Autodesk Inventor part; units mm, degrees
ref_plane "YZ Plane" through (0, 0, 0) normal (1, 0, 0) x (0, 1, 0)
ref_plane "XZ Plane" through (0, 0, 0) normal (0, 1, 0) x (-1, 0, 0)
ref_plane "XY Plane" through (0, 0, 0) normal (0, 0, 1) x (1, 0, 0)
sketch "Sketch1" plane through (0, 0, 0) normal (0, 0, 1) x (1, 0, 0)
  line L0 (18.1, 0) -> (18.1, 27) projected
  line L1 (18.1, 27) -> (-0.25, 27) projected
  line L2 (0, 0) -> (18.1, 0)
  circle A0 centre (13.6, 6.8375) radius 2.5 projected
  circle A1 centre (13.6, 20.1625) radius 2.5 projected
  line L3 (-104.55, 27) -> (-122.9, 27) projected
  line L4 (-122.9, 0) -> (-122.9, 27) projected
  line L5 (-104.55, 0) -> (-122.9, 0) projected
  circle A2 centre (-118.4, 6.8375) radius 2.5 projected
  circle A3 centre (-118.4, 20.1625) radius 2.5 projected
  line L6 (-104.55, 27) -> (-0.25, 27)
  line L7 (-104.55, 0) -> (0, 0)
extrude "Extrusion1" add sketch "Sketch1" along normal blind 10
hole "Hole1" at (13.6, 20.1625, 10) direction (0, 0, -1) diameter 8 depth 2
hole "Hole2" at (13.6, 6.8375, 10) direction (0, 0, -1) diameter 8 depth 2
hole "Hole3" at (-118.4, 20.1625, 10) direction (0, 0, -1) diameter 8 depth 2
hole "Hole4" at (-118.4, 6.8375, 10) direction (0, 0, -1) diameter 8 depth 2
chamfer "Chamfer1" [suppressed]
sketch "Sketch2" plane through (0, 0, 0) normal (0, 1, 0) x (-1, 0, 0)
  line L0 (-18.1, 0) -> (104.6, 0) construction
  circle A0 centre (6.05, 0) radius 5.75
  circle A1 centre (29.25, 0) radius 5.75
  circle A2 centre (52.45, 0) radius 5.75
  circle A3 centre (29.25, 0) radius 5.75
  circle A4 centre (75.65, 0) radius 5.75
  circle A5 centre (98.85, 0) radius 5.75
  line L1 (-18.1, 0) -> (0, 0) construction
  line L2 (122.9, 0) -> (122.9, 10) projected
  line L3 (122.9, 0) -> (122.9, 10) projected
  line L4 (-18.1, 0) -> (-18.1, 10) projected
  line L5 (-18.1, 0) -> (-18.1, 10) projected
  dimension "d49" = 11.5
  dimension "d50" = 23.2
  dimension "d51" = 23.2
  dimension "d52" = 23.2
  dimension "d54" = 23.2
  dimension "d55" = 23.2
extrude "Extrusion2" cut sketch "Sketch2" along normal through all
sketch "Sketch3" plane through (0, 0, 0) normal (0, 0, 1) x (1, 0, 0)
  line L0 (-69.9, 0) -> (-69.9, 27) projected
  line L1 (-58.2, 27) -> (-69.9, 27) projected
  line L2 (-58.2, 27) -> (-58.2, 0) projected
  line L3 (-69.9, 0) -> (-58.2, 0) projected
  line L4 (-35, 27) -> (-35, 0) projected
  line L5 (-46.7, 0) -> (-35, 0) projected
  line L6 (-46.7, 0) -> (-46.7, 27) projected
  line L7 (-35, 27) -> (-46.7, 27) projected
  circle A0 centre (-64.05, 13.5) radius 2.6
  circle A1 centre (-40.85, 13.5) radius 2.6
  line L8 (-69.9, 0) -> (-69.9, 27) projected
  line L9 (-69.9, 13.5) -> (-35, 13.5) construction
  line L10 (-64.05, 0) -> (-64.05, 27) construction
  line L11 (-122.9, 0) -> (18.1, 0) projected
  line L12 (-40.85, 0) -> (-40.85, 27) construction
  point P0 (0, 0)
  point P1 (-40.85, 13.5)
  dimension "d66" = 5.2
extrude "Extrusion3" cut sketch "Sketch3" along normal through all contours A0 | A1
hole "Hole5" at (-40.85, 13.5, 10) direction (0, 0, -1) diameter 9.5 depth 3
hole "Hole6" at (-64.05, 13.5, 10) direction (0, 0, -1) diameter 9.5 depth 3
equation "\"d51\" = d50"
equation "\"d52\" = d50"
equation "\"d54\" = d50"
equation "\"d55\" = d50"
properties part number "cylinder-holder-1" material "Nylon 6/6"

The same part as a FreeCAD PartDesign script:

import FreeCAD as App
import Part
import Sketcher

doc = App.newDocument("Part")
params = doc.addObject("Spreadsheet::Sheet", "Params")
for row, (alias, value) in enumerate([
    ("sketch1_diameter", "5 mm"),
    ("sketch1_width", "141 mm"),
    ("sketch1_height", "27 mm"),
    ("pad1_length", "10 mm"),
    ("sketch2_diameter", "8 mm"),
    ("hole_diameter", "8 mm"),
    ("hole_depth", "2 mm"),
    ("sketch3_diameter", "8 mm"),
    ("hole2_diameter", "8 mm"),
    ("hole2_depth", "2 mm"),
    ("sketch4_diameter", "8 mm"),
    ("hole3_diameter", "8 mm"),
    ("hole3_depth", "2 mm"),
    ("sketch5_diameter", "8 mm"),
    ("hole4_diameter", "8 mm"),
    ("hole4_depth", "2 mm"),
    ("sketch6_diameter", "11.5 mm"),
    ("sketch7_diameter", "5.2 mm"),
    ("sketch8_diameter", "9.5 mm"),
    ("hole5_diameter", "9.5 mm"),
    ("hole5_depth", "3 mm"),
    ("sketch9_diameter", "9.5 mm"),
    ("hole6_diameter", "9.5 mm"),
    ("hole6_depth", "3 mm"),
], start=1):
    params.set(f"A{row}", alias)
    params.set(f"B{row}", "=" + value)
    params.setAlias(f"B{row}", alias)

body = doc.addObject("PartDesign::Body", "Body")

# Sketch on XY plane
sketch1 = doc.addObject("Sketcher::SketchObject", "Sketch")
body.addObject(sketch1)
sketch1.AttachmentSupport = (doc.XY_Plane, [""])
sketch1.MapMode = "FlatFace"
sketch1.addGeometry([
    Part.LineSegment(App.Vector(-122.9, 0, 0), App.Vector(18.1, 0, 0)),  # 0
    Part.LineSegment(App.Vector(18.1, 0, 0), App.Vector(18.1, 27, 0)),  # 1
    Part.LineSegment(App.Vector(18.1, 27, 0), App.Vector(-122.9, 27, 0)),  # 2
    Part.LineSegment(App.Vector(-122.9, 27, 0), App.Vector(-122.9, 0, 0)),  # 3
    Part.Circle(App.Vector(-118.4, 6.8, 0), App.Vector(0, 0, 1), 2.5),  # 4
    Part.Circle(App.Vector(13.6, 6.8, 0), App.Vector(0, 0, 1), 2.5),  # 5
    Part.Circle(App.Vector(-118.4, 20.2, 0), App.Vector(0, 0, 1), 2.5),  # 6
    Part.Circle(App.Vector(13.6, 20.2, 0), App.Vector(0, 0, 1), 2.5),  # 7
], False)
sketch1.addConstraint([
    Sketcher.Constraint("Coincident", 0, 2, 1, 1),
    Sketcher.Constraint("Coincident", 1, 2, 2, 1),
    Sketcher.Constraint("Coincident", 2, 2, 3, 1),
    Sketcher.Constraint("Coincident", 3, 2, 0, 1),
    Sketcher.Constraint("Horizontal", 0),
    Sketcher.Constraint("Vertical", 1),
    Sketcher.Constraint("Horizontal", 2),
    Sketcher.Constraint("Vertical", 3),
    Sketcher.Constraint("Equal", 4, 5),
    Sketcher.Constraint("Equal", 5, 6),
    Sketcher.Constraint("Equal", 6, 7),
    Sketcher.Constraint("PointOnObject", 0, 2, -1),
    Sketcher.Constraint("Horizontal", 4, 3, 5, 3),
    Sketcher.Constraint("Horizontal", 6, 3, 7, 3),
    Sketcher.Constraint("Vertical", 4, 3, 6, 3),
    Sketcher.Constraint("Vertical", 5, 3, 7, 3),
    Sketcher.Constraint("Diameter", 4, 5.0),
    Sketcher.Constraint("DistanceX", 0, 1, 0, 2, 141.0),
    Sketcher.Constraint("DistanceY", 1, 1, 1, 2, 27.0),
    Sketcher.Constraint("DistanceX", 4, 3, 5, 3, 132.0),
    Sketcher.Constraint("DistanceX", 4, 3, -1, 1, 118.4),
    Sketcher.Constraint("DistanceX", -1, 1, 0, 2, 18.1),
    Sketcher.Constraint("DistanceY", 4, 3, 6, 3, 13.325),
    Sketcher.Constraint("DistanceY", -1, 1, 4, 3, 6.8375),
])
sketch1.setExpression("Constraints[16]", "Params.sketch1_diameter")
sketch1.setExpression("Constraints[17]", "Params.sketch1_width")
sketch1.setExpression("Constraints[18]", "Params.sketch1_height")
pad1 = doc.addObject("PartDesign::Pad", "Pad")
body.addObject(pad1)
pad1.Profile = sketch1
pad1.setExpression("Length", "Params.pad1_length")

# Sketch on XY plane
sketch2 = doc.addObject("Sketcher::SketchObject", "Sketch001")
body.addObject(sketch2)
sketch2.AttachmentSupport = (doc.XY_Plane, [""])
sketch2.MapMode = "FlatFace"
sketch2.AttachmentOffset = App.Placement(App.Vector(0, 0, 10), App.Rotation())
sketch2.addGeometry(Part.Circle(App.Vector(13.6, 20.2, 0), App.Vector(0, 0, 1), 4), False)
sketch2.addConstraint([
    Sketcher.Constraint("Diameter", 0, 8.0),
    Sketcher.Constraint("DistanceX", -1, 1, 0, 3, 13.6),
    Sketcher.Constraint("DistanceY", -1, 1, 0, 3, 20.1625),
])
sketch2.setExpression("Constraints[0]", "Params.sketch2_diameter")
doc.recompute()
hole = doc.addObject("PartDesign::Hole", "Hole")
body.addObject(hole)
hole.Profile = sketch2
hole.ThreadType = "None"
hole.setExpression("Diameter", "Params.hole_diameter")
hole.DepthType = "Dimension"
hole.setExpression("Depth", "Params.hole_depth")
hole.DrillPoint = "Flat"

# Sketch on XY plane
sketch3 = doc.addObject("Sketcher::SketchObject", "Sketch002")
body.addObject(sketch3)
sketch3.AttachmentSupport = (doc.XY_Plane, [""])
sketch3.MapMode = "FlatFace"
sketch3.AttachmentOffset = App.Placement(App.Vector(0, 0, 10), App.Rotation())
sketch3.addGeometry(Part.Circle(App.Vector(13.6, 6.8, 0), App.Vector(0, 0, 1), 4), False)
sketch3.addConstraint([
    Sketcher.Constraint("Diameter", 0, 8.0),
    Sketcher.Constraint("DistanceX", -1, 1, 0, 3, 13.6),
    Sketcher.Constraint("DistanceY", -1, 1, 0, 3, 6.8375),
])
sketch3.setExpression("Constraints[0]", "Params.sketch3_diameter")
doc.recompute()
hole2 = doc.addObject("PartDesign::Hole", "Hole001")
body.addObject(hole2)
hole2.Profile = sketch3
hole2.ThreadType = "None"
hole2.setExpression("Diameter", "Params.hole2_diameter")
hole2.DepthType = "Dimension"
hole2.setExpression("Depth", "Params.hole2_depth")
hole2.DrillPoint = "Flat"

# Sketch on XY plane
sketch4 = doc.addObject("Sketcher::SketchObject", "Sketch003")
body.addObject(sketch4)
sketch4.AttachmentSupport = (doc.XY_Plane, [""])
sketch4.MapMode = "FlatFace"
sketch4.AttachmentOffset = App.Placement(App.Vector(0, 0, 10), App.Rotation())
sketch4.addGeometry(Part.Circle(App.Vector(-118.4, 20.2, 0), App.Vector(0, 0, 1), 4), False)
sketch4.addConstraint([
    Sketcher.Constraint("Diameter", 0, 8.0),
    Sketcher.Constraint("DistanceX", 0, 3, -1, 1, 118.4),
    Sketcher.Constraint("DistanceY", -1, 1, 0, 3, 20.1625),
])
sketch4.setExpression("Constraints[0]", "Params.sketch4_diameter")
doc.recompute()
hole3 = doc.addObject("PartDesign::Hole", "Hole002")
body.addObject(hole3)
hole3.Profile = sketch4
hole3.ThreadType = "None"
hole3.setExpression("Diameter", "Params.hole3_diameter")
hole3.DepthType = "Dimension"
hole3.setExpression("Depth", "Params.hole3_depth")
hole3.DrillPoint = "Flat"

# Sketch on XY plane
sketch5 = doc.addObject("Sketcher::SketchObject", "Sketch004")
body.addObject(sketch5)
sketch5.AttachmentSupport = (doc.XY_Plane, [""])
sketch5.MapMode = "FlatFace"
sketch5.AttachmentOffset = App.Placement(App.Vector(0, 0, 10), App.Rotation())
sketch5.addGeometry(Part.Circle(App.Vector(-118.4, 6.8, 0), App.Vector(0, 0, 1), 4), False)
sketch5.addConstraint([
    Sketcher.Constraint("Diameter", 0, 8.0),
    Sketcher.Constraint("DistanceX", 0, 3, -1, 1, 118.4),
    Sketcher.Constraint("DistanceY", -1, 1, 0, 3, 6.8375),
])
sketch5.setExpression("Constraints[0]", "Params.sketch5_diameter")
doc.recompute()
hole4 = doc.addObject("PartDesign::Hole", "Hole003")
body.addObject(hole4)
hole4.Profile = sketch5
hole4.ThreadType = "None"
hole4.setExpression("Diameter", "Params.hole4_diameter")
hole4.DepthType = "Dimension"
hole4.setExpression("Depth", "Params.hole4_depth")
hole4.DrillPoint = "Flat"

# Sketch on XZ plane
sketch6 = doc.addObject("Sketcher::SketchObject", "Sketch005")
body.addObject(sketch6)
sketch6.AttachmentSupport = (doc.XZ_Plane, [""])
sketch6.MapMode = "FlatFace"
sketch6.addGeometry([
    Part.Circle(App.Vector(-6, 0, 0), App.Vector(0, 0, 1), 6),  # 0
    Part.Circle(App.Vector(-29, 0, 0), App.Vector(0, 0, 1), 6),  # 1
    Part.Circle(App.Vector(-52, 0, 0), App.Vector(0, 0, 1), 6),  # 2
    Part.Circle(App.Vector(-76, 0, 0), App.Vector(0, 0, 1), 6),  # 3
    Part.Circle(App.Vector(-99, 0, 0), App.Vector(0, 0, 1), 6),  # 4
], False)
sketch6.addConstraint([
    Sketcher.Constraint("Equal", 0, 1),
    Sketcher.Constraint("Equal", 1, 2),
    Sketcher.Constraint("Equal", 2, 3),
    Sketcher.Constraint("Equal", 3, 4),
    Sketcher.Constraint("PointOnObject", 0, 3, -1),
    Sketcher.Constraint("PointOnObject", 1, 3, -1),
    Sketcher.Constraint("PointOnObject", 2, 3, -1),
    Sketcher.Constraint("PointOnObject", 3, 3, -1),
    Sketcher.Constraint("PointOnObject", 4, 3, -1),
    Sketcher.Constraint("Diameter", 0, 11.5),
    Sketcher.Constraint("DistanceX", 1, 3, 0, 3, 23.2),
    Sketcher.Constraint("DistanceX", 2, 3, 1, 3, 23.2),
    Sketcher.Constraint("DistanceX", 3, 3, 2, 3, 23.2),
    Sketcher.Constraint("DistanceX", 4, 3, 3, 3, 23.2),
    Sketcher.Constraint("DistanceX", 0, 3, -1, 1, 6.05),
])
sketch6.setExpression("Constraints[9]", "Params.sketch6_diameter")
pocket1 = doc.addObject("PartDesign::Pocket", "Pocket")
body.addObject(pocket1)
pocket1.Profile = sketch6
pocket1.Type = "ThroughAll"

# Sketch on XY plane
sketch7 = doc.addObject("Sketcher::SketchObject", "Sketch006")
body.addObject(sketch7)
sketch7.AttachmentSupport = (doc.XY_Plane, [""])
sketch7.MapMode = "FlatFace"
sketch7.addGeometry([
    Part.Circle(App.Vector(-64, 13.5, 0), App.Vector(0, 0, 1), 2.6),
    Part.Circle(App.Vector(-40.9, 13.5, 0), App.Vector(0, 0, 1), 2.6),
], False)
sketch7.addConstraint([
    Sketcher.Constraint("Equal", 0, 1),
    Sketcher.Constraint("Horizontal", 0, 3, 1, 3),
    Sketcher.Constraint("Diameter", 0, 5.2),
    Sketcher.Constraint("DistanceY", -1, 1, 0, 3, 13.5),
    Sketcher.Constraint("DistanceX", 0, 3, 1, 3, 23.2),
    Sketcher.Constraint("DistanceX", 0, 3, -1, 1, 64.05),
])
sketch7.setExpression("Constraints[2]", "Params.sketch7_diameter")
pocket2 = doc.addObject("PartDesign::Pocket", "Pocket001")
body.addObject(pocket2)
pocket2.Profile = sketch7
pocket2.Type = "ThroughAll"
pocket2.Reversed = True

# Sketch on XY plane
sketch8 = doc.addObject("Sketcher::SketchObject", "Sketch007")
body.addObject(sketch8)
sketch8.AttachmentSupport = (doc.XY_Plane, [""])
sketch8.MapMode = "FlatFace"
sketch8.AttachmentOffset = App.Placement(App.Vector(0, 0, 10), App.Rotation())
sketch8.addGeometry(Part.Circle(App.Vector(-40.9, 13.5, 0), App.Vector(0, 0, 1), 4.8), False)
sketch8.addConstraint([
    Sketcher.Constraint("Diameter", 0, 9.5),
    Sketcher.Constraint("DistanceY", -1, 1, 0, 3, 13.5),
    Sketcher.Constraint("DistanceX", 0, 3, -1, 1, 40.85),
])
sketch8.setExpression("Constraints[0]", "Params.sketch8_diameter")
doc.recompute()
hole5 = doc.addObject("PartDesign::Hole", "Hole004")
body.addObject(hole5)
hole5.Profile = sketch8
hole5.ThreadType = "None"
hole5.setExpression("Diameter", "Params.hole5_diameter")
hole5.DepthType = "Dimension"
hole5.setExpression("Depth", "Params.hole5_depth")
hole5.DrillPoint = "Flat"

# Sketch on XY plane
sketch9 = doc.addObject("Sketcher::SketchObject", "Sketch008")
body.addObject(sketch9)
sketch9.AttachmentSupport = (doc.XY_Plane, [""])
sketch9.MapMode = "FlatFace"
sketch9.AttachmentOffset = App.Placement(App.Vector(0, 0, 10), App.Rotation())
sketch9.addGeometry(Part.Circle(App.Vector(-64, 13.5, 0), App.Vector(0, 0, 1), 4.8), False)
sketch9.addConstraint([
    Sketcher.Constraint("Diameter", 0, 9.5),
    Sketcher.Constraint("DistanceY", -1, 1, 0, 3, 13.5),
    Sketcher.Constraint("DistanceX", 0, 3, -1, 1, 64.05),
])
sketch9.setExpression("Constraints[0]", "Params.sketch9_diameter")
doc.recompute()
hole6 = doc.addObject("PartDesign::Hole", "Hole005")
body.addObject(hole6)
hole6.Profile = sketch9
hole6.ThreadType = "None"
hole6.setExpression("Diameter", "Params.hole6_diameter")
hole6.DepthType = "Dimension"
hole6.setExpression("Depth", "Params.hole6_depth")
hole6.DrillPoint = "Flat"

doc.recompute()
